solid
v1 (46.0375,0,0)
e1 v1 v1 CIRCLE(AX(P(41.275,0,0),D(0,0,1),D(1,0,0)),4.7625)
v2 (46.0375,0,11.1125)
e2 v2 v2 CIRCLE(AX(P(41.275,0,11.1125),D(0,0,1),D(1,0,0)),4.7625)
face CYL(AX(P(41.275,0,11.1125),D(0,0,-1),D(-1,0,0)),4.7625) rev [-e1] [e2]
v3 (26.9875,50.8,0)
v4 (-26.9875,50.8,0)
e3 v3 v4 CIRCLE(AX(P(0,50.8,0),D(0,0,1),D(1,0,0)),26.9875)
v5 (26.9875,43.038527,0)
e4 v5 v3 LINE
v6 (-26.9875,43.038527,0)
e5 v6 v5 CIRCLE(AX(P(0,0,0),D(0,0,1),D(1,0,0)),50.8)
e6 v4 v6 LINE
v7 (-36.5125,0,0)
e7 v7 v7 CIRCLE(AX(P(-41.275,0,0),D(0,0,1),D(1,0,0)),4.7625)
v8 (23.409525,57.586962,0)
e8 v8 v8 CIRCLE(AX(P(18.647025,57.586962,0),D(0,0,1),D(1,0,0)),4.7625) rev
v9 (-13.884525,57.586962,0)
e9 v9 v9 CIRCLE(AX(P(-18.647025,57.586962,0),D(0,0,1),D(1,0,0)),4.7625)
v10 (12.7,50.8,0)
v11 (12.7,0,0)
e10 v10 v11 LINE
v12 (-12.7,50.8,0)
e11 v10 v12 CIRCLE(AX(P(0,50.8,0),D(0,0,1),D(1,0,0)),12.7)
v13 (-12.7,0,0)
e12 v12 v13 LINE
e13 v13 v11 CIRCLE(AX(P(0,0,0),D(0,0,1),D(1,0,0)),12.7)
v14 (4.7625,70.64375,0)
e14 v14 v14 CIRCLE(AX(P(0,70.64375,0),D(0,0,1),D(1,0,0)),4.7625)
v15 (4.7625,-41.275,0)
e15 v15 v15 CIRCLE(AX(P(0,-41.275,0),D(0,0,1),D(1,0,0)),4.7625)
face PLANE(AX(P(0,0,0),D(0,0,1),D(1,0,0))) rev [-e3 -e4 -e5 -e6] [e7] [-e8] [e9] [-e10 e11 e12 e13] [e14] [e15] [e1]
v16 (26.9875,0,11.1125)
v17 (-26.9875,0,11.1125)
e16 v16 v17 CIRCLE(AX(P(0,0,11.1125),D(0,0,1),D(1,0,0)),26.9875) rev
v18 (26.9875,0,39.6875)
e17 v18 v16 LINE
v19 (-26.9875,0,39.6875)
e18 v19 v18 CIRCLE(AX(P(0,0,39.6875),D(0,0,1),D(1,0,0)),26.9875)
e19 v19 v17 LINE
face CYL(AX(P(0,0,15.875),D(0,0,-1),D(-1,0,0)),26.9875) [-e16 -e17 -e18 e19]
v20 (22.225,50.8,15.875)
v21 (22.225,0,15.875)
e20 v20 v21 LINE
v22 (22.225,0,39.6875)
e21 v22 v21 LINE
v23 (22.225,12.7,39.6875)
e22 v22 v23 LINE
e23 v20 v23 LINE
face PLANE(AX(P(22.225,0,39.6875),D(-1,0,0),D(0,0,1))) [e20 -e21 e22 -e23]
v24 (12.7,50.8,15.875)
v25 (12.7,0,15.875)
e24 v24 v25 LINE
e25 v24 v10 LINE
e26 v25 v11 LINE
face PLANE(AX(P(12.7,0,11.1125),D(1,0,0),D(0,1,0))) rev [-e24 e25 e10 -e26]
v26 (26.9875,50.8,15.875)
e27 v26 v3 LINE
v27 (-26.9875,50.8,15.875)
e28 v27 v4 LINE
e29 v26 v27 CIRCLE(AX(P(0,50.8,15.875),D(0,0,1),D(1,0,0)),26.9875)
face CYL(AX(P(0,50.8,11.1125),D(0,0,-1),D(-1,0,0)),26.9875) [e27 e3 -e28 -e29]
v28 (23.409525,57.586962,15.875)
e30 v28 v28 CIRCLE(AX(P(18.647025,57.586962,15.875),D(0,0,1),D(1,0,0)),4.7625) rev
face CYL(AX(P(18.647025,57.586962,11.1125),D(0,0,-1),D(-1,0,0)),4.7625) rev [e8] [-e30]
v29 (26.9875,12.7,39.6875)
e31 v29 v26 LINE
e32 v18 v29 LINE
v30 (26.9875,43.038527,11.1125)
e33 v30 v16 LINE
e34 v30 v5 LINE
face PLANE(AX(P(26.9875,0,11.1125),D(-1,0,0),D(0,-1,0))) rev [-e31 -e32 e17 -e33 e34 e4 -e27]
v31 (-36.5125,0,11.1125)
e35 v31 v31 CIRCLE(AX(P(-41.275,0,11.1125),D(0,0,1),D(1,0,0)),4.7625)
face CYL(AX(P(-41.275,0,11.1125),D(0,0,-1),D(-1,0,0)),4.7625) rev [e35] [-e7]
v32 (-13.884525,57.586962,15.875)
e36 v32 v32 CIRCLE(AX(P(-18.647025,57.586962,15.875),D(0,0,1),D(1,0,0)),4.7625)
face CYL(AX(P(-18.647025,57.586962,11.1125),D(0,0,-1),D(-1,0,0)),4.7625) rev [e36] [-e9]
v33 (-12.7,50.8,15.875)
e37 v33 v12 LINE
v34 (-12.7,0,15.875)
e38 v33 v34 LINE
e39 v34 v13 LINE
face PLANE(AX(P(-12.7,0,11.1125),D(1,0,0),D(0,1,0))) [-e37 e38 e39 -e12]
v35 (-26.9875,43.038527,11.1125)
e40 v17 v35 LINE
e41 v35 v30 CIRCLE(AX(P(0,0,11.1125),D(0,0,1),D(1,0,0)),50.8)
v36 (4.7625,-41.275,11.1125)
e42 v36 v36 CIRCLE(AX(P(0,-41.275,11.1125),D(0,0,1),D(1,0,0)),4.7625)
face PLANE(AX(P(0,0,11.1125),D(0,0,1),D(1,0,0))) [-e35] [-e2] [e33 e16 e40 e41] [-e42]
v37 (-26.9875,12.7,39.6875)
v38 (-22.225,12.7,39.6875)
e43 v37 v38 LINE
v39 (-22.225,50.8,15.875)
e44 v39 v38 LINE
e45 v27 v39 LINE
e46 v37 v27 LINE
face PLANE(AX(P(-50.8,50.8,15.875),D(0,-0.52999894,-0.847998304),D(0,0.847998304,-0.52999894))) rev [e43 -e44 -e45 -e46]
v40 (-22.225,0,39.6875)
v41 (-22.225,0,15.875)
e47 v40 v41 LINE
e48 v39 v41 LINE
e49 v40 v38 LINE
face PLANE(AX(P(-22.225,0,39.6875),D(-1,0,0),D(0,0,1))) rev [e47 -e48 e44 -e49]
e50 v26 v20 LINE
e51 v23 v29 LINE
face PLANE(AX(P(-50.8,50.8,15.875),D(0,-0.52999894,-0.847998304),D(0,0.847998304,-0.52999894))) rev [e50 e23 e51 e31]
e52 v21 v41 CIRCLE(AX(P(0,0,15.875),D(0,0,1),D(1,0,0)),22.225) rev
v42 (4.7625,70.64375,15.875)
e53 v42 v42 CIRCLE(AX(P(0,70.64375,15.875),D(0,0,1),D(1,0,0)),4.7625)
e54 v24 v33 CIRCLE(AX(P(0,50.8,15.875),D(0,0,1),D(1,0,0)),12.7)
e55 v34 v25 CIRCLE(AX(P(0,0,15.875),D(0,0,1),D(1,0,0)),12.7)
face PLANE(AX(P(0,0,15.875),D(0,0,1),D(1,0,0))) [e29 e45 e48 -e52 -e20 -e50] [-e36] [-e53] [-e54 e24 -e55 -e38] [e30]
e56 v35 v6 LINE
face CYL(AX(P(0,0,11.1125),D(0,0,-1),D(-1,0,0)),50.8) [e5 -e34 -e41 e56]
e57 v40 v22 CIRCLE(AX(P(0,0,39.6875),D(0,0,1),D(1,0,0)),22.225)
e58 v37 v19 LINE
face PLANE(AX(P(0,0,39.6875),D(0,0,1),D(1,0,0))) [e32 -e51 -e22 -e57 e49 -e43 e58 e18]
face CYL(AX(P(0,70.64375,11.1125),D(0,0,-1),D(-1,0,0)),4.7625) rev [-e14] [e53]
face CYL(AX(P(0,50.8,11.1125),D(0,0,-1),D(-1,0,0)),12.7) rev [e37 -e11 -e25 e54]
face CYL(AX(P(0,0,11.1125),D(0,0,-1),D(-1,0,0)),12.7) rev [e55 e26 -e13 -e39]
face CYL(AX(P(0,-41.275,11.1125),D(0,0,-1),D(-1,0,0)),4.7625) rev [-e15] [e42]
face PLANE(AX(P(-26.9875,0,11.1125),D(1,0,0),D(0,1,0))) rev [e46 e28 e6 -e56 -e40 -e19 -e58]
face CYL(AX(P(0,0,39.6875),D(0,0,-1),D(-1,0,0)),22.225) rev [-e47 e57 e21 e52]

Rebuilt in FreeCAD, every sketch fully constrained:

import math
import FreeCAD as App
import Part
import Sketcher
from FreeCAD import Vector
Q = App.Units.Quantity

doc = App.newDocument("Part")
params = doc.addObject("Spreadsheet::Sheet", "Params")
for row, (alias, value) in enumerate([
    ("sketch1_radius", "2 in"),
    ("sketch1_radius2", "0.5 in"),
    ("sketch1_height", "2 in"),
    ("sketch1_diameter", "0.375 in"),
    ("sketch1_radius3", "1.0625 in"),
    ("pad1_length", "0.4375 in"),
    ("sketch2_radius", "0.5 in"),
    ("sketch2_height", "2 in"),
    ("sketch2_diameter", "0.375 in"),
    ("sketch2_radius2", "1.0625 in"),
    ("pad2_length", "0.625 in"),
    ("sketch3_height", "2 in"),
    ("sketch3_radius", "0.875 in"),
    ("sketch3_radius2", "1.0625 in"),
    ("pad3_length", "1.5625 in"),
    ("sketch4_width", "1.5 in"),
    ("sketch4_height", "0.9375 in"),
], start=1):
    params.set(f"A{row}", alias)
    params.set(f"B{row}", "=" + value)
    params.setAlias(f"B{row}", alias)

body = doc.addObject("PartDesign::Body", "Body")

# Sketch on XY plane
sketch1 = body.newObject("Sketcher::SketchObject", "Sketch")
sketch1.AttachmentSupport = (doc.getObject("XY_Plane"), [""])
sketch1.MapMode = "FlatFace"
sketch1.addGeometry(Part.ArcOfCircle(Part.Circle(Vector(0, 0, 0), Vector(0, 0, 1), 50.8), math.radians(122), math.radians(418)), False)
sketch1.addGeometry(Part.LineSegment(Vector(27, 43, 0), Vector(27, 50.8, 0)), False)
sketch1.addGeometry(Part.ArcOfCircle(Part.Circle(Vector(0, 50.8, 0), Vector(0, 0, 1), 27), math.radians(0), math.radians(180)), False)
sketch1.addGeometry(Part.LineSegment(Vector(-27, 50.8, 0), Vector(-27, 43, 0)), False)
sketch1.addGeometry(Part.Circle(Vector(-41.3, 0, 0), Vector(0, 0, 1), 4.8), False)
sketch1.addGeometry(Part.Circle(Vector(0, -41.3, 0), Vector(0, 0, 1), 4.8), False)
sketch1.addGeometry(Part.Circle(Vector(41.3, 0, 0), Vector(0, 0, 1), 4.8), False)
sketch1.addGeometry(Part.Circle(Vector(-18.6, 57.6, 0), Vector(0, 0, 1), 4.8), False)
sketch1.addGeometry(Part.ArcOfCircle(Part.Circle(Vector(0, 0, 0), Vector(0, 0, 1), 12.7), math.radians(180), math.radians(360)), False)
sketch1.addGeometry(Part.LineSegment(Vector(-12.7, 0, 0), Vector(-12.7, 50.8, 0)), False)
sketch1.addGeometry(Part.ArcOfCircle(Part.Circle(Vector(0, 50.8, 0), Vector(0, 0, 1), 12.7), math.radians(0), math.radians(180)), False)
sketch1.addGeometry(Part.LineSegment(Vector(12.7, 50.8, 0), Vector(12.7, 0, 0)), False)
sketch1.addGeometry(Part.Circle(Vector(18.6, 57.6, 0), Vector(0, 0, 1), 4.8), False)
sketch1.addGeometry(Part.Circle(Vector(0, 70.6, 0), Vector(0, 0, 1), 4.8), False)
sketch1.addConstraint(Sketcher.Constraint("Coincident", 0, 2, 1, 1))
sketch1.addConstraint(Sketcher.Constraint("Tangent", 1, 2, 2, 1))
sketch1.addConstraint(Sketcher.Constraint("Tangent", 2, 2, 3, 1))
sketch1.addConstraint(Sketcher.Constraint("Coincident", 3, 2, 0, 1))
sketch1.addConstraint(Sketcher.Constraint("Tangent", 8, 1, 9, 1))
sketch1.addConstraint(Sketcher.Constraint("Tangent", 9, 2, 10, 2))
sketch1.addConstraint(Sketcher.Constraint("Tangent", 10, 1, 11, 1))
sketch1.addConstraint(Sketcher.Constraint("Tangent", 11, 2, 8, 2))
sketch1.addConstraint(Sketcher.Constraint("Vertical", 1))
sketch1.addConstraint(Sketcher.Constraint("Vertical", 3))
sketch1.addConstraint(Sketcher.Constraint("Vertical", 9))
sketch1.addConstraint(Sketcher.Constraint("Vertical", 11))
sketch1.addConstraint(Sketcher.Constraint("Coincident", 0, 3, -1, 1))
sketch1.addConstraint(Sketcher.Constraint("Coincident", 8, 3, -1, 1))
sketch1.addConstraint(Sketcher.Constraint("Coincident", 10, 3, 2, 3))
sketch1.addConstraint(Sketcher.Constraint("Equal", 4, 5))
sketch1.addConstraint(Sketcher.Constraint("Equal", 5, 6))
sketch1.addConstraint(Sketcher.Constraint("Equal", 6, 7))
sketch1.addConstraint(Sketcher.Constraint("Equal", 7, 12))
sketch1.addConstraint(Sketcher.Constraint("Equal", 12, 13))
sketch1.addConstraint(Sketcher.Constraint("Symmetric", 4, 3, 6, 3, -1, 1))
sketch1.addConstraint(Sketcher.Constraint("Symmetric", 7, 3, 12, 3, -2))
sketch1.addConstraint(Sketcher.Constraint("PointOnObject", 4, 3, -1))
sketch1.addConstraint(Sketcher.Constraint("PointOnObject", 5, 3, -2))
sketch1.addConstraint(Sketcher.Constraint("PointOnObject", 13, 3, -2))
sketch1.addConstraint(Sketcher.Constraint("Radius", 0, Q("2 in")))
sketch1.addConstraint(Sketcher.Constraint("Radius", 8, Q("0.5 in")))
sketch1.addConstraint(Sketcher.Constraint("DistanceY", 9, 1, 9, 2, Q("2 in")))
sketch1.addConstraint(Sketcher.Constraint("Diameter", 4, Q("0.375 in")))
sketch1.addConstraint(Sketcher.Constraint("Radius", 2, Q("1.0625 in")))
sketch1.addConstraint(Sketcher.Constraint("DistanceX", 4, 3, 6, 3, Q("3.25 in")))
sketch1.addConstraint(Sketcher.Constraint("DistanceY", 5, 3, -1, 1, Q("1.625 in")))
sketch1.addConstraint(Sketcher.Constraint("DistanceY", -1, 1, 13, 3, Q("2.78125 in")))
sketch1.addConstraint(Sketcher.Constraint("DistanceX", 7, 3, 12, 3, Q("37.294051 mm")))
sketch1.addConstraint(Sketcher.Constraint("DistanceY", -1, 1, 7, 3, Q("57.586962 mm")))
sketch1.setExpression("Constraints[25]", "Params.sketch1_radius")
sketch1.setExpression("Constraints[26]", "Params.sketch1_radius2")
sketch1.setExpression("Constraints[27]", "Params.sketch1_height")
sketch1.setExpression("Constraints[28]", "Params.sketch1_diameter")
sketch1.setExpression("Constraints[29]", "Params.sketch1_radius3")
pad1 = body.newObject("PartDesign::Pad", "Pad")
pad1.Profile = sketch1
pad1.setExpression("Length", "Params.pad1_length")

# Sketch on XY plane
sketch2 = body.newObject("Sketcher::SketchObject", "Sketch001")
sketch2.AttachmentSupport = (doc.getObject("XY_Plane"), [""])
sketch2.MapMode = "FlatFace"
sketch2.addGeometry(Part.LineSegment(Vector(27, 0, 0), Vector(27, 50.8, 0)), False)
sketch2.addGeometry(Part.ArcOfCircle(Part.Circle(Vector(0, 50.8, 0), Vector(0, 0, 1), 27), math.radians(0), math.radians(180)), False)
sketch2.addGeometry(Part.LineSegment(Vector(-27, 50.8, 0), Vector(-27, 0, 0)), False)
sketch2.addGeometry(Part.ArcOfCircle(Part.Circle(Vector(0, 0, 0), Vector(0, 0, 1), 27), math.radians(180), math.radians(360)), False)
sketch2.addGeometry(Part.LineSegment(Vector(-12.7, 0, 0), Vector(-12.7, 50.8, 0)), False)
sketch2.addGeometry(Part.ArcOfCircle(Part.Circle(Vector(0, 50.8, 0), Vector(0, 0, 1), 12.7), math.radians(0), math.radians(180)), False)
sketch2.addGeometry(Part.LineSegment(Vector(12.7, 50.8, 0), Vector(12.7, 0, 0)), False)
sketch2.addGeometry(Part.ArcOfCircle(Part.Circle(Vector(0, 0, 0), Vector(0, 0, 1), 12.7), math.radians(180), math.radians(360)), False)
sketch2.addGeometry(Part.Circle(Vector(18.6, 57.6, 0), Vector(0, 0, 1), 4.8), False)
sketch2.addGeometry(Part.Circle(Vector(0, 70.6, 0), Vector(0, 0, 1), 4.8), False)
sketch2.addGeometry(Part.Circle(Vector(-18.6, 57.6, 0), Vector(0, 0, 1), 4.8), False)
sketch2.addConstraint(Sketcher.Constraint("Tangent", 0, 2, 1, 1))
sketch2.addConstraint(Sketcher.Constraint("Tangent", 1, 2, 2, 1))
sketch2.addConstraint(Sketcher.Constraint("Tangent", 2, 2, 3, 1))
sketch2.addConstraint(Sketcher.Constraint("Tangent", 3, 2, 0, 1))
sketch2.addConstraint(Sketcher.Constraint("Tangent", 4, 2, 5, 2))
sketch2.addConstraint(Sketcher.Constraint("Tangent", 5, 1, 6, 1))
sketch2.addConstraint(Sketcher.Constraint("Tangent", 6, 2, 7, 2))
sketch2.addConstraint(Sketcher.Constraint("Tangent", 7, 1, 4, 1))
sketch2.addConstraint(Sketcher.Constraint("Vertical", 0))
sketch2.addConstraint(Sketcher.Constraint("Vertical", 2))
sketch2.addConstraint(Sketcher.Constraint("Vertical", 4))
sketch2.addConstraint(Sketcher.Constraint("Vertical", 6))
sketch2.addConstraint(Sketcher.Constraint("Coincident", 3, 3, -1, 1))
sketch2.addConstraint(Sketcher.Constraint("Coincident", 7, 3, -1, 1))
sketch2.addConstraint(Sketcher.Constraint("Equal", 8, 9))
sketch2.addConstraint(Sketcher.Constraint("Equal", 9, 10))
sketch2.addConstraint(Sketcher.Constraint("Symmetric", 8, 3, 10, 3, -2))
sketch2.addConstraint(Sketcher.Constraint("PointOnObject", 9, 3, -2))
sketch2.addConstraint(Sketcher.Constraint("Horizontal", 5, 3, 0, 2))
sketch2.addConstraint(Sketcher.Constraint("Radius", 5, Q("0.5 in")))
sketch2.addConstraint(Sketcher.Constraint("DistanceY", 0, 1, 0, 2, Q("2 in")))
sketch2.addConstraint(Sketcher.Constraint("Diameter", 8, Q("0.375 in")))
sketch2.addConstraint(Sketcher.Constraint("Radius", 1, Q("1.0625 in")))
sketch2.addConstraint(Sketcher.Constraint("DistanceY", -1, 1, 9, 3, Q("2.78125 in")))
sketch2.addConstraint(Sketcher.Constraint("DistanceX", 10, 3, 8, 3, Q("37.294051 mm")))
sketch2.addConstraint(Sketcher.Constraint("DistanceY", -1, 1, 8, 3, Q("57.586962 mm")))
sketch2.setExpression("Constraints[19]", "Params.sketch2_radius")
sketch2.setExpression("Constraints[20]", "Params.sketch2_height")
sketch2.setExpression("Constraints[21]", "Params.sketch2_diameter")
sketch2.setExpression("Constraints[22]", "Params.sketch2_radius2")
pad2 = body.newObject("PartDesign::Pad", "Pad001")
pad2.Profile = sketch2
pad2.setExpression("Length", "Params.pad2_length")

# Sketch on XY plane
sketch3 = body.newObject("Sketcher::SketchObject", "Sketch002")
sketch3.AttachmentSupport = (doc.getObject("XY_Plane"), [""])
sketch3.MapMode = "FlatFace"
sketch3.addGeometry(Part.ArcOfCircle(Part.Circle(Vector(0, 0, 0), Vector(0, 0, 1), 22.2), math.radians(180), math.radians(360)), False)
sketch3.addGeometry(Part.LineSegment(Vector(-22.2, 0, 0), Vector(-22.2, 50.8, 0)), False)
sketch3.addGeometry(Part.LineSegment(Vector(-22.2, 50.8, 0), Vector(-27, 50.8, 0)), False)
sketch3.addGeometry(Part.LineSegment(Vector(-27, 50.8, 0), Vector(-27, 0, 0)), False)
sketch3.addGeometry(Part.ArcOfCircle(Part.Circle(Vector(0, 0, 0), Vector(0, 0, 1), 27), math.radians(180), math.radians(360)), False)
sketch3.addGeometry(Part.LineSegment(Vector(27, 0, 0), Vector(27, 50.8, 0)), False)
sketch3.addGeometry(Part.LineSegment(Vector(27, 50.8, 0), Vector(22.2, 50.8, 0)), False)
sketch3.addGeometry(Part.LineSegment(Vector(22.2, 50.8, 0), Vector(22.2, 0, 0)), False)
sketch3.addConstraint(Sketcher.Constraint("Tangent", 0, 1, 1, 1))
sketch3.addConstraint(Sketcher.Constraint("Coincident", 1, 2, 2, 1))
sketch3.addConstraint(Sketcher.Constraint("Coincident", 2, 2, 3, 1))
sketch3.addConstraint(Sketcher.Constraint("Tangent", 3, 2, 4, 1))
sketch3.addConstraint(Sketcher.Constraint("Tangent", 4, 2, 5, 1))
sketch3.addConstraint(Sketcher.Constraint("Coincident", 5, 2, 6, 1))
sketch3.addConstraint(Sketcher.Constraint("Coincident", 6, 2, 7, 1))
sketch3.addConstraint(Sketcher.Constraint("Tangent", 7, 2, 0, 2))
sketch3.addConstraint(Sketcher.Constraint("Vertical", 1))
sketch3.addConstraint(Sketcher.Constraint("Horizontal", 2))
sketch3.addConstraint(Sketcher.Constraint("Vertical", 3))
sketch3.addConstraint(Sketcher.Constraint("Vertical", 5))
sketch3.addConstraint(Sketcher.Constraint("Horizontal", 6))
sketch3.addConstraint(Sketcher.Constraint("Vertical", 7))
sketch3.addConstraint(Sketcher.Constraint("Coincident", 0, 3, -1, 1))
sketch3.addConstraint(Sketcher.Constraint("Coincident", 4, 3, -1, 1))
sketch3.addConstraint(Sketcher.Constraint("Horizontal", 2, 2, 5, 2))
sketch3.addConstraint(Sketcher.Constraint("DistanceY", 1, 1, 1, 2, Q("2 in")))
sketch3.addConstraint(Sketcher.Constraint("Radius", 0, Q("0.875 in")))
sketch3.addConstraint(Sketcher.Constraint("Radius", 4, Q("1.0625 in")))
sketch3.setExpression("Constraints[17]", "Params.sketch3_height")
sketch3.setExpression("Constraints[18]", "Params.sketch3_radius")
sketch3.setExpression("Constraints[19]", "Params.sketch3_radius2")
pad3 = body.newObject("PartDesign::Pad", "Pad002")
pad3.Profile = sketch3
pad3.setExpression("Length", "Params.pad3_length")

# Sketch on YZ plane
sketch4 = body.newObject("Sketcher::SketchObject", "Sketch003")
sketch4.AttachmentSupport = (doc.getObject("YZ_Plane"), [""])
sketch4.MapMode = "FlatFace"
sketch4.AttachmentOffset = App.Placement(Vector(0, 0, 1.0625 * 25.4), App.Rotation())
sketch4.addGeometry(Part.LineSegment(Vector(13, 40, 0), Vector(51, 16, 0)), False)
sketch4.addGeometry(Part.LineSegment(Vector(51, 16, 0), Vector(51, 40, 0)), False)
sketch4.addGeometry(Part.LineSegment(Vector(51, 40, 0), Vector(13, 40, 0)), False)
sketch4.addConstraint(Sketcher.Constraint("Coincident", 0, 2, 1, 1))
sketch4.addConstraint(Sketcher.Constraint("Coincident", 1, 2, 2, 1))
sketch4.addConstraint(Sketcher.Constraint("Coincident", 2, 2, 0, 1))
sketch4.addConstraint(Sketcher.Constraint("Vertical", 1))
sketch4.addConstraint(Sketcher.Constraint("Horizontal", 2))
sketch4.addConstraint(Sketcher.Constraint("DistanceX", 2, 2, 2, 1, Q("1.5 in")))
sketch4.addConstraint(Sketcher.Constraint("DistanceX", -1, 1, 0, 2, Q("2 in")))
sketch4.addConstraint(Sketcher.Constraint("DistanceY", 1, 1, 1, 2, Q("0.9375 in")))
sketch4.addConstraint(Sketcher.Constraint("DistanceY", -1, 1, 0, 2, Q("0.625 in")))
sketch4.setExpression("Constraints[5]", "Params.sketch4_width")
sketch4.setExpression("Constraints[7]", "Params.sketch4_height")
pocket1 = body.newObject("PartDesign::Pocket", "Pocket")
pocket1.Profile = sketch4
pocket1.Type = "ThroughAll"

doc.recompute()
